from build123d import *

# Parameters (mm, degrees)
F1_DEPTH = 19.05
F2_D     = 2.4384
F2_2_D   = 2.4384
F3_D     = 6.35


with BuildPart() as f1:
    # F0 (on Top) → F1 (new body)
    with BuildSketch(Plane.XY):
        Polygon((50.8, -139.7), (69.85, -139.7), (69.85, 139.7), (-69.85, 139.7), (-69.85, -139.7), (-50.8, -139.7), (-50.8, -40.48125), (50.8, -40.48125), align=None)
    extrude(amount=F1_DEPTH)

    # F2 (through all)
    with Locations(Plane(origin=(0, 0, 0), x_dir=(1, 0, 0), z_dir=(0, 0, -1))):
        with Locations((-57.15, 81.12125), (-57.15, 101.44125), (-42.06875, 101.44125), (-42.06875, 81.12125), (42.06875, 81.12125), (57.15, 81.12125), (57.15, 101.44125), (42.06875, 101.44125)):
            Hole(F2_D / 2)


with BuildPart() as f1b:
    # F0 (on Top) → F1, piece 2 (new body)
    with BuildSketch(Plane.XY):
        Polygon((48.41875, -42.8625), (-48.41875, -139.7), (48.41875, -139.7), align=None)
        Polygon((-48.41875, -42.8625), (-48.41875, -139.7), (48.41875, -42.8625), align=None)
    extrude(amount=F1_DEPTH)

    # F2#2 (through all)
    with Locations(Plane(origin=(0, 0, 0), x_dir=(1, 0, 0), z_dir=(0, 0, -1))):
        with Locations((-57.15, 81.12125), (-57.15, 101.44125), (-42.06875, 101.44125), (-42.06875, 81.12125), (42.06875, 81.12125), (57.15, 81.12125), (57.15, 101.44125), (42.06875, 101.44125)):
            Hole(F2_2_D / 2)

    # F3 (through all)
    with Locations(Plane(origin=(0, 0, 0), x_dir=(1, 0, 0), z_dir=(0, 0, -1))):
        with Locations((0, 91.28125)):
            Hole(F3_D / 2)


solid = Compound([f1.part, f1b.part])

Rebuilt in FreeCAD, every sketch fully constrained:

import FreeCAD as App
import Part
import Sketcher
Q = App.Units.Quantity

doc = App.newDocument("Part")
body = doc.addObject("PartDesign::Body", "Body")

sketch1 = doc.addObject("Sketcher::SketchObject", "Sketch")
body.addObject(sketch1)
sketch1.AttachmentSupport = (doc.XY_Plane, [""])
sketch1.MapMode = "FlatFace"
sketch1.addGeometry(Part.LineSegment(App.Vector(51, -140, 0), App.Vector(70, -140, 0)), False)
sketch1.addGeometry(Part.LineSegment(App.Vector(70, -140, 0), App.Vector(70, 140, 0)), False)
sketch1.addGeometry(Part.LineSegment(App.Vector(70, 140, 0), App.Vector(-70, 140, 0)), False)
sketch1.addGeometry(Part.LineSegment(App.Vector(-70, 140, 0), App.Vector(-70, -140, 0)), False)
sketch1.addGeometry(Part.LineSegment(App.Vector(-70, -140, 0), App.Vector(-51, -140, 0)), False)
sketch1.addGeometry(Part.LineSegment(App.Vector(-51, -140, 0), App.Vector(-51, -40, 0)), False)
sketch1.addGeometry(Part.LineSegment(App.Vector(-51, -40, 0), App.Vector(51, -40, 0)), False)
sketch1.addGeometry(Part.LineSegment(App.Vector(51, -40, 0), App.Vector(51, -140, 0)), False)
sketch1.addConstraint(Sketcher.Constraint("Coincident", 0, 2, 1, 1))
sketch1.addConstraint(Sketcher.Constraint("Coincident", 1, 2, 2, 1))
sketch1.addConstraint(Sketcher.Constraint("Coincident", 2, 2, 3, 1))
sketch1.addConstraint(Sketcher.Constraint("Coincident", 3, 2, 4, 1))
sketch1.addConstraint(Sketcher.Constraint("Coincident", 4, 2, 5, 1))
sketch1.addConstraint(Sketcher.Constraint("Coincident", 5, 2, 6, 1))
sketch1.addConstraint(Sketcher.Constraint("Coincident", 6, 2, 7, 1))
sketch1.addConstraint(Sketcher.Constraint("Coincident", 7, 2, 0, 1))
sketch1.addConstraint(Sketcher.Constraint("Horizontal", 0))
sketch1.addConstraint(Sketcher.Constraint("Vertical", 1))
sketch1.addConstraint(Sketcher.Constraint("Horizontal", 2))
sketch1.addConstraint(Sketcher.Constraint("Vertical", 3))
sketch1.addConstraint(Sketcher.Constraint("Horizontal", 4))
sketch1.addConstraint(Sketcher.Constraint("Vertical", 5))
sketch1.addConstraint(Sketcher.Constraint("Horizontal", 6))
sketch1.addConstraint(Sketcher.Constraint("Vertical", 7))
sketch1.addConstraint(Sketcher.Constraint("Symmetric", 0, 2, 2, 2, -1, 1))
sketch1.addConstraint(Sketcher.Constraint("Symmetric", 4, 2, 7, 2, -2))
sketch1.addConstraint(Sketcher.Constraint("DistanceX", 6, 1, 6, 2, Q("4 in")))
sketch1.addConstraint(Sketcher.Constraint("DistanceY", 1, 1, 1, 2, Q("11 in")))
sketch1.addConstraint(Sketcher.Constraint("DistanceX", 2, 2, 2, 1, Q("5.5 in")))
sketch1.addConstraint(Sketcher.Constraint("DistanceY", 5, 1, 5, 2, Q("3.90625 in")))
pad1 = doc.addObject("PartDesign::Pad", "Pad")
body.addObject(pad1)
pad1.Profile = sketch1
pad1.Length = Q("0.75 in")

sketch2 = doc.addObject("Sketcher::SketchObject", "Sketch001")
body.addObject(sketch2)
sketch2.AttachmentSupport = (doc.XY_Plane, [""])
sketch2.MapMode = "FlatFace"
sketch2.addGeometry(Part.Circle(App.Vector(-57.1, -81.1, 0), App.Vector(0, 0, 1), 1.2), False)
sketch2.addGeometry(Part.Circle(App.Vector(-57.1, -101.4, 0), App.Vector(0, 0, 1), 1.2), False)
sketch2.addGeometry(Part.Circle(App.Vector(-42.1, -101.4, 0), App.Vector(0, 0, 1), 1.2), False)
sketch2.addGeometry(Part.Circle(App.Vector(-42.1, -81.1, 0), App.Vector(0, 0, 1), 1.2), False)
sketch2.addGeometry(Part.Circle(App.Vector(42.1, -81.1, 0), App.Vector(0, 0, 1), 1.2), False)
sketch2.addGeometry(Part.Circle(App.Vector(57.1, -81.1, 0), App.Vector(0, 0, 1), 1.2), False)
sketch2.addGeometry(Part.Circle(App.Vector(57.1, -101.4, 0), App.Vector(0, 0, 1), 1.2), False)
sketch2.addGeometry(Part.Circle(App.Vector(42.1, -101.4, 0), App.Vector(0, 0, 1), 1.2), False)
sketch2.addConstraint(Sketcher.Constraint("Equal", 0, 1))
sketch2.addConstraint(Sketcher.Constraint("Equal", 1, 2))
sketch2.addConstraint(Sketcher.Constraint("Equal", 2, 3))
sketch2.addConstraint(Sketcher.Constraint("Equal", 3, 4))
sketch2.addConstraint(Sketcher.Constraint("Equal", 4, 5))
sketch2.addConstraint(Sketcher.Constraint("Equal", 5, 6))
sketch2.addConstraint(Sketcher.Constraint("Equal", 6, 7))
sketch2.addConstraint(Sketcher.Constraint("Symmetric", 3, 3, 4, 3, -2))
sketch2.addConstraint(Sketcher.Constraint("Symmetric", 0, 3, 5, 3, -2))
sketch2.addConstraint(Sketcher.Constraint("Symmetric", 1, 3, 6, 3, -2))
sketch2.addConstraint(Sketcher.Constraint("Symmetric", 2, 3, 7, 3, -2))
sketch2.addConstraint(Sketcher.Constraint("Horizontal", 1, 3, 2, 3))
sketch2.addConstraint(Sketcher.Constraint("Horizontal", 0, 3, 3, 3))
sketch2.addConstraint(Sketcher.Constraint("Vertical", 0, 3, 1, 3))
sketch2.addConstraint(Sketcher.Constraint("Vertical", 2, 3, 3, 3))
sketch2.addConstraint(Sketcher.Constraint("Diameter", 0, Q("0.096 in")))
sketch2.addConstraint(Sketcher.Constraint("DistanceY", 1, 3, 0, 3, Q("0.8 in")))
sketch2.addConstraint(Sketcher.Constraint("DistanceX", 0, 3, 5, 3, Q("4.5 in")))
sketch2.addConstraint(Sketcher.Constraint("DistanceX", 2, 3, -1, 1, Q("1.65625 in")))
sketch2.addConstraint(Sketcher.Constraint("DistanceY", 0, 3, -1, 1, 81.12125))
doc.recompute()
hole = doc.addObject("PartDesign::Hole", "Hole")
body.addObject(hole)
hole.Profile = sketch2
hole.ThreadType = "None"
hole.Diameter = Q("0.096 in")
hole.DepthType = "ThroughAll"
hole.Reversed = True
body2 = doc.addObject("PartDesign::Body", "Body001")

sketch3 = doc.addObject("Sketcher::SketchObject", "Sketch002")
body2.addObject(sketch3)
sketch3.AttachmentSupport = (doc.getObject("XY_Plane001"), [""])
sketch3.MapMode = "FlatFace"
sketch3.addGeometry(Part.LineSegment(App.Vector(-48, -140, 0), App.Vector(48, -140, 0)), False)
sketch3.addGeometry(Part.LineSegment(App.Vector(48, -140, 0), App.Vector(48, -43, 0)), False)
sketch3.addGeometry(Part.LineSegment(App.Vector(48, -43, 0), App.Vector(-48, -43, 0)), False)
sketch3.addGeometry(Part.LineSegment(App.Vector(-48, -43, 0), App.Vector(-48, -140, 0)), False)
sketch3.addConstraint(Sketcher.Constraint("Coincident", 0, 2, 1, 1))
sketch3.addConstraint(Sketcher.Constraint("Coincident", 1, 2, 2, 1))
sketch3.addConstraint(Sketcher.Constraint("Coincident", 2, 2, 3, 1))
sketch3.addConstraint(Sketcher.Constraint("Coincident", 3, 2, 0, 1))
sketch3.addConstraint(Sketcher.Constraint("Horizontal", 0))
sketch3.addConstraint(Sketcher.Constraint("Vertical", 1))
sketch3.addConstraint(Sketcher.Constraint("Horizontal", 2))
sketch3.addConstraint(Sketcher.Constraint("Vertical", 3))
sketch3.addConstraint(Sketcher.Constraint("Equal", 2, 1))
sketch3.addConstraint(Sketcher.Constraint("DistanceY", 0, 2, -1, 1, Q("5.5 in")))
sketch3.addConstraint(Sketcher.Constraint("DistanceX", 0, 1, 0, 2, Q("3.8125 in")))
sketch3.addConstraint(Sketcher.Constraint("DistanceX", -1, 1, 0, 2, Q("1.90625 in")))
pad2 = doc.addObject("PartDesign::Pad", "Pad001")
body2.addObject(pad2)
pad2.Profile = sketch3
pad2.Length = Q("0.75 in")

sketch4 = doc.addObject("Sketcher::SketchObject", "Sketch003")
body2.addObject(sketch4)
sketch4.AttachmentSupport = (doc.getObject("XY_Plane001"), [""])
sketch4.MapMode = "FlatFace"
sketch4.addGeometry(Part.Circle(App.Vector(-57.1, -81.1, 0), App.Vector(0, 0, 1), 1.2), False)
sketch4.addGeometry(Part.Circle(App.Vector(-57.1, -101.4, 0), App.Vector(0, 0, 1), 1.2), False)
sketch4.addGeometry(Part.Circle(App.Vector(-42.1, -101.4, 0), App.Vector(0, 0, 1), 1.2), False)
sketch4.addGeometry(Part.Circle(App.Vector(-42.1, -81.1, 0), App.Vector(0, 0, 1), 1.2), False)
sketch4.addGeometry(Part.Circle(App.Vector(42.1, -81.1, 0), App.Vector(0, 0, 1), 1.2), False)
sketch4.addGeometry(Part.Circle(App.Vector(57.1, -81.1, 0), App.Vector(0, 0, 1), 1.2), False)
sketch4.addGeometry(Part.Circle(App.Vector(57.1, -101.4, 0), App.Vector(0, 0, 1), 1.2), False)
sketch4.addGeometry(Part.Circle(App.Vector(42.1, -101.4, 0), App.Vector(0, 0, 1), 1.2), False)
sketch4.addConstraint(Sketcher.Constraint("Equal", 0, 1))
sketch4.addConstraint(Sketcher.Constraint("Equal", 1, 2))
sketch4.addConstraint(Sketcher.Constraint("Equal", 2, 3))
sketch4.addConstraint(Sketcher.Constraint("Equal", 3, 4))
sketch4.addConstraint(Sketcher.Constraint("Equal", 4, 5))
sketch4.addConstraint(Sketcher.Constraint("Equal", 5, 6))
sketch4.addConstraint(Sketcher.Constraint("Equal", 6, 7))
sketch4.addConstraint(Sketcher.Constraint("Symmetric", 3, 3, 4, 3, -2))
sketch4.addConstraint(Sketcher.Constraint("Symmetric", 0, 3, 5, 3, -2))
sketch4.addConstraint(Sketcher.Constraint("Symmetric", 1, 3, 6, 3, -2))
sketch4.addConstraint(Sketcher.Constraint("Symmetric", 2, 3, 7, 3, -2))
sketch4.addConstraint(Sketcher.Constraint("Horizontal", 1, 3, 2, 3))
sketch4.addConstraint(Sketcher.Constraint("Horizontal", 0, 3, 3, 3))
sketch4.addConstraint(Sketcher.Constraint("Vertical", 0, 3, 1, 3))
sketch4.addConstraint(Sketcher.Constraint("Vertical", 2, 3, 3, 3))
sketch4.addConstraint(Sketcher.Constraint("Diameter", 0, Q("0.096 in")))
sketch4.addConstraint(Sketcher.Constraint("DistanceY", 1, 3, 0, 3, Q("0.8 in")))
sketch4.addConstraint(Sketcher.Constraint("DistanceX", 0, 3, 5, 3, Q("4.5 in")))
sketch4.addConstraint(Sketcher.Constraint("DistanceX", 2, 3, -1, 1, Q("1.65625 in")))
sketch4.addConstraint(Sketcher.Constraint("DistanceY", 0, 3, -1, 1, 81.12125))
doc.recompute()
hole2 = doc.addObject("PartDesign::Hole", "Hole001")
body2.addObject(hole2)
hole2.Profile = sketch4
hole2.ThreadType = "None"
hole2.Diameter = Q("0.096 in")
hole2.DepthType = "ThroughAll"
hole2.Reversed = True

sketch5 = doc.addObject("Sketcher::SketchObject", "Sketch004")
body2.addObject(sketch5)
sketch5.AttachmentSupport = (doc.getObject("XY_Plane001"), [""])
sketch5.MapMode = "FlatFace"
sketch5.addGeometry(Part.Circle(App.Vector(0, -91.3, 0), App.Vector(0, 0, 1), 3.2), False)
sketch5.addConstraint(Sketcher.Constraint("PointOnObject", 0, 3, -2))
sketch5.addConstraint(Sketcher.Constraint("Diameter", 0, Q("0.25 in")))
sketch5.addConstraint(Sketcher.Constraint("DistanceY", 0, 3, -1, 1, Q("3.59375 in")))
doc.recompute()
hole3 = doc.addObject("PartDesign::Hole", "Hole002")
body2.addObject(hole3)
hole3.Profile = sketch5
hole3.ThreadType = "None"
hole3.Diameter = Q("0.25 in")
hole3.DepthType = "ThroughAll"
hole3.Reversed = True

doc.recompute()
